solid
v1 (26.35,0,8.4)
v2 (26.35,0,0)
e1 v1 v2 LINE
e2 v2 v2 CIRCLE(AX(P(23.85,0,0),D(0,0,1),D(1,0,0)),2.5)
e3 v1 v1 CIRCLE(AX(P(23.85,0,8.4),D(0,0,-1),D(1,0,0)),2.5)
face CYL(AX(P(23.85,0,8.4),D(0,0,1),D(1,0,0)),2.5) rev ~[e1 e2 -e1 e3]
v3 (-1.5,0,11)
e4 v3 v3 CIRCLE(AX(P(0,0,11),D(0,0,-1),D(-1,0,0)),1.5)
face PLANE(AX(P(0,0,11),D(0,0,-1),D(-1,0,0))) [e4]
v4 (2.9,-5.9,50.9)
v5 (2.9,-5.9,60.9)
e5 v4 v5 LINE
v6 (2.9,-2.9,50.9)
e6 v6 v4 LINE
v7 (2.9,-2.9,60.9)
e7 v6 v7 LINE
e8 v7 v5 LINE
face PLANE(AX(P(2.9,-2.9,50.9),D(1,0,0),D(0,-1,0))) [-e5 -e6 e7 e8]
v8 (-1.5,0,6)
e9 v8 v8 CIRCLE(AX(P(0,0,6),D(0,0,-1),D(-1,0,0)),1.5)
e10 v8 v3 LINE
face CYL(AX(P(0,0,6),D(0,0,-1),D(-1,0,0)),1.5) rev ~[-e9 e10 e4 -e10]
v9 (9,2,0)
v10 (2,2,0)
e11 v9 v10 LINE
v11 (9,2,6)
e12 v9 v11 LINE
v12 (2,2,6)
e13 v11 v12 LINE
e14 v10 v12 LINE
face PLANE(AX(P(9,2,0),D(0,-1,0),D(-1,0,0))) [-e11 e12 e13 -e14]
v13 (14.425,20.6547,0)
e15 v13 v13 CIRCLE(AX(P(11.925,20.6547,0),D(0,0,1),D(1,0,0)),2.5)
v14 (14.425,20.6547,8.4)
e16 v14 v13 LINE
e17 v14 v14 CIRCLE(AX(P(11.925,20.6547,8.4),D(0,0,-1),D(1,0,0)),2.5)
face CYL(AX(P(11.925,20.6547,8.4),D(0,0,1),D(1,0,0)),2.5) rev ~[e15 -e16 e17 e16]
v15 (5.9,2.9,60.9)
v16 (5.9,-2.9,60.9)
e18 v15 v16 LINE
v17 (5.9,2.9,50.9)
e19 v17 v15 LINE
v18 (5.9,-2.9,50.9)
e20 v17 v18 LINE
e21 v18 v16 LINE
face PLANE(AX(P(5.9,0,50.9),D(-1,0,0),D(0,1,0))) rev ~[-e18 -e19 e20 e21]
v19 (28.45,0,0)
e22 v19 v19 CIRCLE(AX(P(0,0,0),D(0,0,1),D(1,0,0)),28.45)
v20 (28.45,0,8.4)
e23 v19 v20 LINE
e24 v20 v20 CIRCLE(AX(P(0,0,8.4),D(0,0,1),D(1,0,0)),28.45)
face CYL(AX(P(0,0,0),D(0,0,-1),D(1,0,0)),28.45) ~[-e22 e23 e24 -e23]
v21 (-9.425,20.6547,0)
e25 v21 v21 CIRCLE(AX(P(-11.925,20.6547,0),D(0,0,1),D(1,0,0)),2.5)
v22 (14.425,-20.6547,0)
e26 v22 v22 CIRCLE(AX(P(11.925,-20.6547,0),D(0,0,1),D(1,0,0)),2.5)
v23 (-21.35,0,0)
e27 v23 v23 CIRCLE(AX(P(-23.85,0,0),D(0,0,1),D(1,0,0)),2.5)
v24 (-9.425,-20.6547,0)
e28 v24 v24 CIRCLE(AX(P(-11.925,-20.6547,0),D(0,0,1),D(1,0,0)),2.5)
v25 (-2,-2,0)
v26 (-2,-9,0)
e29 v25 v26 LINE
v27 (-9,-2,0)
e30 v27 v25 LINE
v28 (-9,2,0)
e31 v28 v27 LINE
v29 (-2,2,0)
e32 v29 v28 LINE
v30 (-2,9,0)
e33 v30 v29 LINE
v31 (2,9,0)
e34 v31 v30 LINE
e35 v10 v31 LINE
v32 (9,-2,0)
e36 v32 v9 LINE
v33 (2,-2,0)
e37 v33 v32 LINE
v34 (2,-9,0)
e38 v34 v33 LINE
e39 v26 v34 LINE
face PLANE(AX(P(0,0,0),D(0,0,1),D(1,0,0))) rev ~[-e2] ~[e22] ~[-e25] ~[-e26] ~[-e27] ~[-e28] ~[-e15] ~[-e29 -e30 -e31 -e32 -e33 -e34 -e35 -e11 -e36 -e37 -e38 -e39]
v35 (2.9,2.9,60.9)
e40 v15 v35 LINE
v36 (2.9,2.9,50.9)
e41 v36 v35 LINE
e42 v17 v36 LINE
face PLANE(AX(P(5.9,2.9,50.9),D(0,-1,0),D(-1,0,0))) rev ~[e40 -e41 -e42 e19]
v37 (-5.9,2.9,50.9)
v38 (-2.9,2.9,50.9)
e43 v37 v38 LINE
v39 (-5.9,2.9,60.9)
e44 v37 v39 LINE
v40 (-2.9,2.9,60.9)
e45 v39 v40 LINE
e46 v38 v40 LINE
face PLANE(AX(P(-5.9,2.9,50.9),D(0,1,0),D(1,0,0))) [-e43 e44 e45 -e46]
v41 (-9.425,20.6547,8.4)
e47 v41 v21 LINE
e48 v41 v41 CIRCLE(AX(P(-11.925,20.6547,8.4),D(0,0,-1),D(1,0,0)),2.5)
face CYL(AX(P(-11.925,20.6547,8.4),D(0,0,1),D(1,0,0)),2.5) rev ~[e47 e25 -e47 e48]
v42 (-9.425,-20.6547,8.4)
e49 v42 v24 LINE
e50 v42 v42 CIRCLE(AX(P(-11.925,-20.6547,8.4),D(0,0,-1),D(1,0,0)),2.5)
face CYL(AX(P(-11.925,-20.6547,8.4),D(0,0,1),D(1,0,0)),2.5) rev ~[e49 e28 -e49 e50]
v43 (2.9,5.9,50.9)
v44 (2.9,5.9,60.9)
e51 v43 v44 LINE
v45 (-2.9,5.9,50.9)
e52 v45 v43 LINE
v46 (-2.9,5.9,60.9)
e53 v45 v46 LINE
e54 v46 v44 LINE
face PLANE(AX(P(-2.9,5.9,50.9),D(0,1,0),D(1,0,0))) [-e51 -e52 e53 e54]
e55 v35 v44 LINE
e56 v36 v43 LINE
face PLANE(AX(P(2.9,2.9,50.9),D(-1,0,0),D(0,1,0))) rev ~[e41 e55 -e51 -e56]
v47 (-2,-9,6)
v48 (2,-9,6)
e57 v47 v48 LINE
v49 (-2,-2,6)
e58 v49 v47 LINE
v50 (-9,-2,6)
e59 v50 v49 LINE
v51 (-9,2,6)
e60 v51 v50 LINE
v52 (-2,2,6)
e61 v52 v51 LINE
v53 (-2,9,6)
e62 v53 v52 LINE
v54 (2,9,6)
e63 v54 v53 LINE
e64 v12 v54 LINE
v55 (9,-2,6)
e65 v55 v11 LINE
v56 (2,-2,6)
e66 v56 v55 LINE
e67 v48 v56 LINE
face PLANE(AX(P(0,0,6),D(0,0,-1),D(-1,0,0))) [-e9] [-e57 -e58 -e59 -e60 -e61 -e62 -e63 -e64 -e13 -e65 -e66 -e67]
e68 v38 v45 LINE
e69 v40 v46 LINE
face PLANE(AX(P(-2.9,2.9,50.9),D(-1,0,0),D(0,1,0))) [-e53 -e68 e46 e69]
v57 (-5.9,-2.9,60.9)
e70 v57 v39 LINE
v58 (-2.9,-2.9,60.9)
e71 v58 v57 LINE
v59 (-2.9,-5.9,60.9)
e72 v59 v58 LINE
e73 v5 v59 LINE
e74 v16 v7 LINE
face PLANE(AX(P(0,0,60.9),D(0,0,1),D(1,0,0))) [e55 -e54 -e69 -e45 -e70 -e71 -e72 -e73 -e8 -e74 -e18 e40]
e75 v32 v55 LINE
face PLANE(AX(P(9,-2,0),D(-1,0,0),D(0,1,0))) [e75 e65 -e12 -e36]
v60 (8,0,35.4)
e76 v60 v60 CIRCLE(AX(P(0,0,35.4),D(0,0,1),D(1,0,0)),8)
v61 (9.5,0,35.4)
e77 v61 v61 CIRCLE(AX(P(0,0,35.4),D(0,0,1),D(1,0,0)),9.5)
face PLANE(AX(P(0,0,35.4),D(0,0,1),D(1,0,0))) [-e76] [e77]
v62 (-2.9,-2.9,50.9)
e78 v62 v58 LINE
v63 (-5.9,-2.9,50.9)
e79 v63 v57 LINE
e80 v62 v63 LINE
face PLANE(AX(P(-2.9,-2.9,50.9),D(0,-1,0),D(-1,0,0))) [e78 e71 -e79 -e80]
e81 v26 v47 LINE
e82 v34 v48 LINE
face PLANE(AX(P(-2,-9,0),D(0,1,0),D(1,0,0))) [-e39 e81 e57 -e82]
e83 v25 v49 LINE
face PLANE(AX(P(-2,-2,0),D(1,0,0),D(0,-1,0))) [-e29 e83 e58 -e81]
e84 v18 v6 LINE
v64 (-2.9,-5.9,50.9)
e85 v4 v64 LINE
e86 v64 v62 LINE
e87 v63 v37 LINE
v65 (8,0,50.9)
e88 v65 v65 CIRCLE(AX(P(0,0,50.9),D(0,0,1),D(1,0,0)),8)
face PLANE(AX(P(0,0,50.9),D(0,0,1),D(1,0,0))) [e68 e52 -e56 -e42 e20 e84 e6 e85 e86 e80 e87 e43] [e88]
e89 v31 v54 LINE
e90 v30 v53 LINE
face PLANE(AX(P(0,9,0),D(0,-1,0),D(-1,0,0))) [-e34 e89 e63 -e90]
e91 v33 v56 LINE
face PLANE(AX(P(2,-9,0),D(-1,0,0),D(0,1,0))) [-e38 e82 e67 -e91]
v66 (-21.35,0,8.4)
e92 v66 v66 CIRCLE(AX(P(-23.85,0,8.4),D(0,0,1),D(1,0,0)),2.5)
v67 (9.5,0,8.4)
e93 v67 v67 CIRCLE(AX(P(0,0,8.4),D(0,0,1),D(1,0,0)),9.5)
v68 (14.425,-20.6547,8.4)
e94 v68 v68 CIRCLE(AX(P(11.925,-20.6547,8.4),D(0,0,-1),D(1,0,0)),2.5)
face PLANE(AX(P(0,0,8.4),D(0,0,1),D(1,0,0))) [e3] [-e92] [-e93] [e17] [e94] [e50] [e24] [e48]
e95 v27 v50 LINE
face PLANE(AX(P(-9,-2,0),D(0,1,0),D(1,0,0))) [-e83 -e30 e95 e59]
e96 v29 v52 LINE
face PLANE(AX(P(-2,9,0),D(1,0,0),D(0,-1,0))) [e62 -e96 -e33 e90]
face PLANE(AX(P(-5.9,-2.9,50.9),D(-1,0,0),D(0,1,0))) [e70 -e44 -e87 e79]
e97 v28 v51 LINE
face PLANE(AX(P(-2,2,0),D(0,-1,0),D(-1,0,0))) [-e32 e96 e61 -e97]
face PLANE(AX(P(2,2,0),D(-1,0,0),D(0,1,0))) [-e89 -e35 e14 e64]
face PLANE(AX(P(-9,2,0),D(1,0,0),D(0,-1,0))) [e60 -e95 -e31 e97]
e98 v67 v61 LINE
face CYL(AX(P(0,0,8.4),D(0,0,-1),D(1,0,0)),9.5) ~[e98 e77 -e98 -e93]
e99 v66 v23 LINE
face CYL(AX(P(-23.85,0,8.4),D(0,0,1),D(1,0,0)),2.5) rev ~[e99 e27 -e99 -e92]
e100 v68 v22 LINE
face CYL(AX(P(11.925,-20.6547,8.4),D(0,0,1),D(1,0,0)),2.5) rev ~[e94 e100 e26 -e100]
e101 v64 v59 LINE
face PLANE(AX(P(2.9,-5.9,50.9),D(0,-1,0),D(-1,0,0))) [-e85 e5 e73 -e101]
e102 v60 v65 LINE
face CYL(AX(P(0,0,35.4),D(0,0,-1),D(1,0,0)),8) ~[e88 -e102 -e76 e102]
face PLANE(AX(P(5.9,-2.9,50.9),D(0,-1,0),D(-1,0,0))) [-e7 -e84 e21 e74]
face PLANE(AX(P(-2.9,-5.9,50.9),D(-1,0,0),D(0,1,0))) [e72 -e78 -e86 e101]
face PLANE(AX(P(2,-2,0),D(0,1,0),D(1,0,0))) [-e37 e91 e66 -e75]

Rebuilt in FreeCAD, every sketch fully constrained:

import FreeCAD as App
import Part
import Sketcher
from FreeCAD import Vector


def add_polygon(sketch, points):
    """Adds a closed chain of lines whose ends are joined by coincident constraints."""
    first, n = sketch.GeometryCount, len(points)
    for a, b in zip(points, points[1:] + points[:1]):
        sketch.addGeometry(Part.LineSegment(App.Vector(*a, 0), App.Vector(*b, 0)), False)
    for i in range(n):
        sketch.addConstraint(Sketcher.Constraint("Coincident", first + i, 2, first + (i + 1) % n, 1))

doc = App.newDocument("Part")
params = doc.addObject("Spreadsheet::Sheet", "Params")
for row, (alias, value) in enumerate([
    ("sketch1_diameter", "56.9 mm"),
    ("pad1_length", "8.4 mm"),
    ("sketch2_diameter", "5 mm"),
    ("pocket1_length", "8.4 mm"),
    ("sketch3_diameter", "19 mm"),
    ("pad2_length", "27 mm"),
    ("sketch4_diameter", "16 mm"),
    ("pad3_length", "15.5 mm"),
    ("sketch5_width", "4 mm"),
    ("sketch5_width2", "7 mm"),
    ("pocket2_length", "6 mm"),
    ("sketch6_diameter", "3 mm"),
    ("pocket3_length", "5 mm"),
    ("sketch7_width", "3 mm"),
    ("sketch7_width2", "5.8 mm"),
    ("pad4_length", "10 mm"),
], start=1):
    params.set(f"A{row}", alias)
    params.set(f"B{row}", "=" + value)
    params.setAlias(f"B{row}", alias)

body = doc.addObject("PartDesign::Body", "Body")

# Sketch on XY plane
sketch1 = body.newObject("Sketcher::SketchObject", "Sketch")
sketch1.AttachmentSupport = (doc.getObject("XY_Plane"), [""])
sketch1.MapMode = "FlatFace"
sketch1.addGeometry(Part.Circle(Vector(0, 0, 0), Vector(0, 0, 1), 28.45), False)
sketch1.addConstraint([
    Sketcher.Constraint("Coincident", 0, 3, -1, 1),
    Sketcher.Constraint("Diameter", 0, 56.9),
])
sketch1.setExpression("Constraints[1]", "Params.sketch1_diameter")
pad1 = body.newObject("PartDesign::Pad", "Pad")
pad1.Profile = sketch1
pad1.setExpression("Length", "Params.pad1_length")

# Sketch on XY plane
sketch2 = body.newObject("Sketcher::SketchObject", "Sketch001")
sketch2.AttachmentSupport = (doc.getObject("XY_Plane"), [""])
sketch2.MapMode = "FlatFace"
sketch2.AttachmentOffset = App.Placement(Vector(0, 0, 8.4), App.Rotation())
sketch2.addGeometry([
    Part.Circle(Vector(23.85, 0, 0), Vector(0, 0, 1), 2.5),  # 0
    Part.Circle(Vector(11.925, 20.6547, 0), Vector(0, 0, 1), 2.5),  # 1
    Part.Circle(Vector(-11.925, 20.6547, 0), Vector(0, 0, 1), 2.5),  # 2
    Part.Circle(Vector(-23.85, 0, 0), Vector(0, 0, 1), 2.5),  # 3
    Part.Circle(Vector(11.925, -20.6547, 0), Vector(0, 0, 1), 2.5),  # 4
    Part.Circle(Vector(-11.925, -20.6547, 0), Vector(0, 0, 1), 2.5),  # 5
], False)
sketch2.addConstraint([
    Sketcher.Constraint("Equal", 0, 1),
    Sketcher.Constraint("Equal", 1, 2),
    Sketcher.Constraint("Equal", 2, 3),
    Sketcher.Constraint("Equal", 3, 4),
    Sketcher.Constraint("Equal", 4, 5),
    Sketcher.Constraint("Symmetric", 0, 3, 3, 3, -1, 1),
    Sketcher.Constraint("Symmetric", 2, 3, 4, 3, -1, 1),
    Sketcher.Constraint("Symmetric", 1, 3, 5, 3, -1, 1),
    Sketcher.Constraint("Symmetric", 1, 3, 2, 3, -2),
    Sketcher.Constraint("PointOnObject", 0, 3, -1),
    Sketcher.Constraint("Diameter", 0, 5.0),
    Sketcher.Constraint("DistanceX", -1, 1, 0, 3, 23.85),
    Sketcher.Constraint("DistanceX", 2, 3, 1, 3, 23.85),
    Sketcher.Constraint("DistanceY", -1, 1, 1, 3, 20.6547),
])
sketch2.setExpression("Constraints[10]", "Params.sketch2_diameter")
pocket1 = body.newObject("PartDesign::Pocket", "Pocket")
pocket1.Profile = sketch2
pocket1.setExpression("Length", "Params.pocket1_length")

# Sketch on XY plane
sketch3 = body.newObject("Sketcher::SketchObject", "Sketch002")
sketch3.AttachmentSupport = (doc.getObject("XY_Plane"), [""])
sketch3.MapMode = "FlatFace"
sketch3.AttachmentOffset = App.Placement(Vector(0, 0, 8.4), App.Rotation())
sketch3.addGeometry(Part.Circle(Vector(0, 0, 0), Vector(0, 0, 1), 9.5), False)
sketch3.addConstraint([
    Sketcher.Constraint("Coincident", 0, 3, -1, 1),
    Sketcher.Constraint("Diameter", 0, 19.0),
])
sketch3.setExpression("Constraints[1]", "Params.sketch3_diameter")
pad2 = body.newObject("PartDesign::Pad", "Pad001")
pad2.Profile = sketch3
pad2.setExpression("Length", "Params.pad2_length")

# Sketch on XY plane
sketch4 = body.newObject("Sketcher::SketchObject", "Sketch003")
sketch4.AttachmentSupport = (doc.getObject("XY_Plane"), [""])
sketch4.MapMode = "FlatFace"
sketch4.AttachmentOffset = App.Placement(Vector(0, 0, 35.4), App.Rotation())
sketch4.addGeometry(Part.Circle(Vector(0, 0, 0), Vector(0, 0, 1), 8), False)
sketch4.addConstraint([
    Sketcher.Constraint("Coincident", 0, 3, -1, 1),
    Sketcher.Constraint("Diameter", 0, 16.0),
])
sketch4.setExpression("Constraints[1]", "Params.sketch4_diameter")
pad3 = body.newObject("PartDesign::Pad", "Pad002")
pad3.Profile = sketch4
pad3.setExpression("Length", "Params.pad3_length")

# Sketch on XY plane
sketch5 = body.newObject("Sketcher::SketchObject", "Sketch004")
sketch5.AttachmentSupport = (doc.getObject("XY_Plane"), [""])
sketch5.MapMode = "FlatFace"
add_polygon(sketch5, [(-2, 9), (2, 9), (2, 2), (9, 2), (9, -2), (2, -2), (2, -9), (-2, -9), (-2, -2), (-9, -2), (-9, 2), (-2, 2)])  # lines 0-11
sketch5.addConstraint([
    Sketcher.Constraint("Horizontal", 0),
    Sketcher.Constraint("Vertical", 1),
    Sketcher.Constraint("Horizontal", 2),
    Sketcher.Constraint("Vertical", 3),
    Sketcher.Constraint("Horizontal", 4),
    Sketcher.Constraint("Vertical", 5),
    Sketcher.Constraint("Horizontal", 6),
    Sketcher.Constraint("Vertical", 7),
    Sketcher.Constraint("Horizontal", 8),
    Sketcher.Constraint("Vertical", 9),
    Sketcher.Constraint("Horizontal", 10),
    Sketcher.Constraint("Vertical", 11),
    Sketcher.Constraint("Symmetric", 0, 2, 6, 2, -1, 1),
    Sketcher.Constraint("Symmetric", 2, 2, 8, 2, -1, 1),
    Sketcher.Constraint("Symmetric", 4, 2, 10, 2, -1, 1),
    Sketcher.Constraint("Symmetric", 4, 2, 7, 2, -2),
    Sketcher.Constraint("Equal", 10, 1),
    Sketcher.Constraint("Equal", 6, 3),
    Sketcher.Constraint("DistanceX", 0, 1, 0, 2, 4.0),
    Sketcher.Constraint("DistanceX", 2, 1, 2, 2, 7.0),
])
sketch5.setExpression("Constraints[30]", "Params.sketch5_width")
sketch5.setExpression("Constraints[31]", "Params.sketch5_width2")
pocket2 = body.newObject("PartDesign::Pocket", "Pocket001")
pocket2.Profile = sketch5
pocket2.setExpression("Length", "Params.pocket2_length")
pocket2.Reversed = True

# Sketch on XY plane
sketch6 = body.newObject("Sketcher::SketchObject", "Sketch005")
sketch6.AttachmentSupport = (doc.getObject("XY_Plane"), [""])
sketch6.MapMode = "FlatFace"
sketch6.AttachmentOffset = App.Placement(Vector(0, 0, 6), App.Rotation())
sketch6.addGeometry(Part.Circle(Vector(0, 0, 0), Vector(0, 0, 1), 1.5), False)
sketch6.addConstraint([
    Sketcher.Constraint("Coincident", 0, 3, -1, 1),
    Sketcher.Constraint("Diameter", 0, 3.0),
])
sketch6.setExpression("Constraints[1]", "Params.sketch6_diameter")
pocket3 = body.newObject("PartDesign::Pocket", "Pocket002")
pocket3.Profile = sketch6
pocket3.setExpression("Length", "Params.pocket3_length")
pocket3.Reversed = True

# Sketch on XY plane
sketch7 = body.newObject("Sketcher::SketchObject", "Sketch006")
sketch7.AttachmentSupport = (doc.getObject("XY_Plane"), [""])
sketch7.MapMode = "FlatFace"
sketch7.AttachmentOffset = App.Placement(Vector(0, 0, 50.9), App.Rotation())
add_polygon(sketch7, [(5.9, -2.9), (5.9, 2.9), (2.9, 2.9), (2.9, 5.9), (-2.9, 5.9), (-2.9, 2.9), (-5.9, 2.9), (-5.9, -2.9), (-2.9, -2.9), (-2.9, -5.9), (2.9, -5.9), (2.9, -2.9)])  # lines 0-11
sketch7.addConstraint([
    Sketcher.Constraint("Vertical", 0),
    Sketcher.Constraint("Horizontal", 1),
    Sketcher.Constraint("Vertical", 2),
    Sketcher.Constraint("Horizontal", 3),
    Sketcher.Constraint("Vertical", 4),
    Sketcher.Constraint("Horizontal", 5),
    Sketcher.Constraint("Vertical", 6),
    Sketcher.Constraint("Horizontal", 7),
    Sketcher.Constraint("Vertical", 8),
    Sketcher.Constraint("Horizontal", 9),
    Sketcher.Constraint("Vertical", 10),
    Sketcher.Constraint("Horizontal", 11),
    Sketcher.Constraint("Symmetric", 0, 2, 6, 2, -1, 1),
    Sketcher.Constraint("Symmetric", 2, 2, 8, 2, -1, 1),
    Sketcher.Constraint("Symmetric", 4, 2, 10, 2, -1, 1),
    Sketcher.Constraint("Symmetric", 1, 2, 4, 2, -2),
    Sketcher.Constraint("Equal", 9, 0),
    Sketcher.Constraint("Equal", 11, 2),
    Sketcher.Constraint("DistanceX", 1, 2, 1, 1, 3.0),
    Sketcher.Constraint("DistanceX", 3, 2, 3, 1, 5.8),
])
sketch7.setExpression("Constraints[30]", "Params.sketch7_width")
sketch7.setExpression("Constraints[31]", "Params.sketch7_width2")
pad4 = body.newObject("PartDesign::Pad", "Pad003")
pad4.Profile = sketch7
pad4.setExpression("Length", "Params.pad4_length")

doc.recompute()
